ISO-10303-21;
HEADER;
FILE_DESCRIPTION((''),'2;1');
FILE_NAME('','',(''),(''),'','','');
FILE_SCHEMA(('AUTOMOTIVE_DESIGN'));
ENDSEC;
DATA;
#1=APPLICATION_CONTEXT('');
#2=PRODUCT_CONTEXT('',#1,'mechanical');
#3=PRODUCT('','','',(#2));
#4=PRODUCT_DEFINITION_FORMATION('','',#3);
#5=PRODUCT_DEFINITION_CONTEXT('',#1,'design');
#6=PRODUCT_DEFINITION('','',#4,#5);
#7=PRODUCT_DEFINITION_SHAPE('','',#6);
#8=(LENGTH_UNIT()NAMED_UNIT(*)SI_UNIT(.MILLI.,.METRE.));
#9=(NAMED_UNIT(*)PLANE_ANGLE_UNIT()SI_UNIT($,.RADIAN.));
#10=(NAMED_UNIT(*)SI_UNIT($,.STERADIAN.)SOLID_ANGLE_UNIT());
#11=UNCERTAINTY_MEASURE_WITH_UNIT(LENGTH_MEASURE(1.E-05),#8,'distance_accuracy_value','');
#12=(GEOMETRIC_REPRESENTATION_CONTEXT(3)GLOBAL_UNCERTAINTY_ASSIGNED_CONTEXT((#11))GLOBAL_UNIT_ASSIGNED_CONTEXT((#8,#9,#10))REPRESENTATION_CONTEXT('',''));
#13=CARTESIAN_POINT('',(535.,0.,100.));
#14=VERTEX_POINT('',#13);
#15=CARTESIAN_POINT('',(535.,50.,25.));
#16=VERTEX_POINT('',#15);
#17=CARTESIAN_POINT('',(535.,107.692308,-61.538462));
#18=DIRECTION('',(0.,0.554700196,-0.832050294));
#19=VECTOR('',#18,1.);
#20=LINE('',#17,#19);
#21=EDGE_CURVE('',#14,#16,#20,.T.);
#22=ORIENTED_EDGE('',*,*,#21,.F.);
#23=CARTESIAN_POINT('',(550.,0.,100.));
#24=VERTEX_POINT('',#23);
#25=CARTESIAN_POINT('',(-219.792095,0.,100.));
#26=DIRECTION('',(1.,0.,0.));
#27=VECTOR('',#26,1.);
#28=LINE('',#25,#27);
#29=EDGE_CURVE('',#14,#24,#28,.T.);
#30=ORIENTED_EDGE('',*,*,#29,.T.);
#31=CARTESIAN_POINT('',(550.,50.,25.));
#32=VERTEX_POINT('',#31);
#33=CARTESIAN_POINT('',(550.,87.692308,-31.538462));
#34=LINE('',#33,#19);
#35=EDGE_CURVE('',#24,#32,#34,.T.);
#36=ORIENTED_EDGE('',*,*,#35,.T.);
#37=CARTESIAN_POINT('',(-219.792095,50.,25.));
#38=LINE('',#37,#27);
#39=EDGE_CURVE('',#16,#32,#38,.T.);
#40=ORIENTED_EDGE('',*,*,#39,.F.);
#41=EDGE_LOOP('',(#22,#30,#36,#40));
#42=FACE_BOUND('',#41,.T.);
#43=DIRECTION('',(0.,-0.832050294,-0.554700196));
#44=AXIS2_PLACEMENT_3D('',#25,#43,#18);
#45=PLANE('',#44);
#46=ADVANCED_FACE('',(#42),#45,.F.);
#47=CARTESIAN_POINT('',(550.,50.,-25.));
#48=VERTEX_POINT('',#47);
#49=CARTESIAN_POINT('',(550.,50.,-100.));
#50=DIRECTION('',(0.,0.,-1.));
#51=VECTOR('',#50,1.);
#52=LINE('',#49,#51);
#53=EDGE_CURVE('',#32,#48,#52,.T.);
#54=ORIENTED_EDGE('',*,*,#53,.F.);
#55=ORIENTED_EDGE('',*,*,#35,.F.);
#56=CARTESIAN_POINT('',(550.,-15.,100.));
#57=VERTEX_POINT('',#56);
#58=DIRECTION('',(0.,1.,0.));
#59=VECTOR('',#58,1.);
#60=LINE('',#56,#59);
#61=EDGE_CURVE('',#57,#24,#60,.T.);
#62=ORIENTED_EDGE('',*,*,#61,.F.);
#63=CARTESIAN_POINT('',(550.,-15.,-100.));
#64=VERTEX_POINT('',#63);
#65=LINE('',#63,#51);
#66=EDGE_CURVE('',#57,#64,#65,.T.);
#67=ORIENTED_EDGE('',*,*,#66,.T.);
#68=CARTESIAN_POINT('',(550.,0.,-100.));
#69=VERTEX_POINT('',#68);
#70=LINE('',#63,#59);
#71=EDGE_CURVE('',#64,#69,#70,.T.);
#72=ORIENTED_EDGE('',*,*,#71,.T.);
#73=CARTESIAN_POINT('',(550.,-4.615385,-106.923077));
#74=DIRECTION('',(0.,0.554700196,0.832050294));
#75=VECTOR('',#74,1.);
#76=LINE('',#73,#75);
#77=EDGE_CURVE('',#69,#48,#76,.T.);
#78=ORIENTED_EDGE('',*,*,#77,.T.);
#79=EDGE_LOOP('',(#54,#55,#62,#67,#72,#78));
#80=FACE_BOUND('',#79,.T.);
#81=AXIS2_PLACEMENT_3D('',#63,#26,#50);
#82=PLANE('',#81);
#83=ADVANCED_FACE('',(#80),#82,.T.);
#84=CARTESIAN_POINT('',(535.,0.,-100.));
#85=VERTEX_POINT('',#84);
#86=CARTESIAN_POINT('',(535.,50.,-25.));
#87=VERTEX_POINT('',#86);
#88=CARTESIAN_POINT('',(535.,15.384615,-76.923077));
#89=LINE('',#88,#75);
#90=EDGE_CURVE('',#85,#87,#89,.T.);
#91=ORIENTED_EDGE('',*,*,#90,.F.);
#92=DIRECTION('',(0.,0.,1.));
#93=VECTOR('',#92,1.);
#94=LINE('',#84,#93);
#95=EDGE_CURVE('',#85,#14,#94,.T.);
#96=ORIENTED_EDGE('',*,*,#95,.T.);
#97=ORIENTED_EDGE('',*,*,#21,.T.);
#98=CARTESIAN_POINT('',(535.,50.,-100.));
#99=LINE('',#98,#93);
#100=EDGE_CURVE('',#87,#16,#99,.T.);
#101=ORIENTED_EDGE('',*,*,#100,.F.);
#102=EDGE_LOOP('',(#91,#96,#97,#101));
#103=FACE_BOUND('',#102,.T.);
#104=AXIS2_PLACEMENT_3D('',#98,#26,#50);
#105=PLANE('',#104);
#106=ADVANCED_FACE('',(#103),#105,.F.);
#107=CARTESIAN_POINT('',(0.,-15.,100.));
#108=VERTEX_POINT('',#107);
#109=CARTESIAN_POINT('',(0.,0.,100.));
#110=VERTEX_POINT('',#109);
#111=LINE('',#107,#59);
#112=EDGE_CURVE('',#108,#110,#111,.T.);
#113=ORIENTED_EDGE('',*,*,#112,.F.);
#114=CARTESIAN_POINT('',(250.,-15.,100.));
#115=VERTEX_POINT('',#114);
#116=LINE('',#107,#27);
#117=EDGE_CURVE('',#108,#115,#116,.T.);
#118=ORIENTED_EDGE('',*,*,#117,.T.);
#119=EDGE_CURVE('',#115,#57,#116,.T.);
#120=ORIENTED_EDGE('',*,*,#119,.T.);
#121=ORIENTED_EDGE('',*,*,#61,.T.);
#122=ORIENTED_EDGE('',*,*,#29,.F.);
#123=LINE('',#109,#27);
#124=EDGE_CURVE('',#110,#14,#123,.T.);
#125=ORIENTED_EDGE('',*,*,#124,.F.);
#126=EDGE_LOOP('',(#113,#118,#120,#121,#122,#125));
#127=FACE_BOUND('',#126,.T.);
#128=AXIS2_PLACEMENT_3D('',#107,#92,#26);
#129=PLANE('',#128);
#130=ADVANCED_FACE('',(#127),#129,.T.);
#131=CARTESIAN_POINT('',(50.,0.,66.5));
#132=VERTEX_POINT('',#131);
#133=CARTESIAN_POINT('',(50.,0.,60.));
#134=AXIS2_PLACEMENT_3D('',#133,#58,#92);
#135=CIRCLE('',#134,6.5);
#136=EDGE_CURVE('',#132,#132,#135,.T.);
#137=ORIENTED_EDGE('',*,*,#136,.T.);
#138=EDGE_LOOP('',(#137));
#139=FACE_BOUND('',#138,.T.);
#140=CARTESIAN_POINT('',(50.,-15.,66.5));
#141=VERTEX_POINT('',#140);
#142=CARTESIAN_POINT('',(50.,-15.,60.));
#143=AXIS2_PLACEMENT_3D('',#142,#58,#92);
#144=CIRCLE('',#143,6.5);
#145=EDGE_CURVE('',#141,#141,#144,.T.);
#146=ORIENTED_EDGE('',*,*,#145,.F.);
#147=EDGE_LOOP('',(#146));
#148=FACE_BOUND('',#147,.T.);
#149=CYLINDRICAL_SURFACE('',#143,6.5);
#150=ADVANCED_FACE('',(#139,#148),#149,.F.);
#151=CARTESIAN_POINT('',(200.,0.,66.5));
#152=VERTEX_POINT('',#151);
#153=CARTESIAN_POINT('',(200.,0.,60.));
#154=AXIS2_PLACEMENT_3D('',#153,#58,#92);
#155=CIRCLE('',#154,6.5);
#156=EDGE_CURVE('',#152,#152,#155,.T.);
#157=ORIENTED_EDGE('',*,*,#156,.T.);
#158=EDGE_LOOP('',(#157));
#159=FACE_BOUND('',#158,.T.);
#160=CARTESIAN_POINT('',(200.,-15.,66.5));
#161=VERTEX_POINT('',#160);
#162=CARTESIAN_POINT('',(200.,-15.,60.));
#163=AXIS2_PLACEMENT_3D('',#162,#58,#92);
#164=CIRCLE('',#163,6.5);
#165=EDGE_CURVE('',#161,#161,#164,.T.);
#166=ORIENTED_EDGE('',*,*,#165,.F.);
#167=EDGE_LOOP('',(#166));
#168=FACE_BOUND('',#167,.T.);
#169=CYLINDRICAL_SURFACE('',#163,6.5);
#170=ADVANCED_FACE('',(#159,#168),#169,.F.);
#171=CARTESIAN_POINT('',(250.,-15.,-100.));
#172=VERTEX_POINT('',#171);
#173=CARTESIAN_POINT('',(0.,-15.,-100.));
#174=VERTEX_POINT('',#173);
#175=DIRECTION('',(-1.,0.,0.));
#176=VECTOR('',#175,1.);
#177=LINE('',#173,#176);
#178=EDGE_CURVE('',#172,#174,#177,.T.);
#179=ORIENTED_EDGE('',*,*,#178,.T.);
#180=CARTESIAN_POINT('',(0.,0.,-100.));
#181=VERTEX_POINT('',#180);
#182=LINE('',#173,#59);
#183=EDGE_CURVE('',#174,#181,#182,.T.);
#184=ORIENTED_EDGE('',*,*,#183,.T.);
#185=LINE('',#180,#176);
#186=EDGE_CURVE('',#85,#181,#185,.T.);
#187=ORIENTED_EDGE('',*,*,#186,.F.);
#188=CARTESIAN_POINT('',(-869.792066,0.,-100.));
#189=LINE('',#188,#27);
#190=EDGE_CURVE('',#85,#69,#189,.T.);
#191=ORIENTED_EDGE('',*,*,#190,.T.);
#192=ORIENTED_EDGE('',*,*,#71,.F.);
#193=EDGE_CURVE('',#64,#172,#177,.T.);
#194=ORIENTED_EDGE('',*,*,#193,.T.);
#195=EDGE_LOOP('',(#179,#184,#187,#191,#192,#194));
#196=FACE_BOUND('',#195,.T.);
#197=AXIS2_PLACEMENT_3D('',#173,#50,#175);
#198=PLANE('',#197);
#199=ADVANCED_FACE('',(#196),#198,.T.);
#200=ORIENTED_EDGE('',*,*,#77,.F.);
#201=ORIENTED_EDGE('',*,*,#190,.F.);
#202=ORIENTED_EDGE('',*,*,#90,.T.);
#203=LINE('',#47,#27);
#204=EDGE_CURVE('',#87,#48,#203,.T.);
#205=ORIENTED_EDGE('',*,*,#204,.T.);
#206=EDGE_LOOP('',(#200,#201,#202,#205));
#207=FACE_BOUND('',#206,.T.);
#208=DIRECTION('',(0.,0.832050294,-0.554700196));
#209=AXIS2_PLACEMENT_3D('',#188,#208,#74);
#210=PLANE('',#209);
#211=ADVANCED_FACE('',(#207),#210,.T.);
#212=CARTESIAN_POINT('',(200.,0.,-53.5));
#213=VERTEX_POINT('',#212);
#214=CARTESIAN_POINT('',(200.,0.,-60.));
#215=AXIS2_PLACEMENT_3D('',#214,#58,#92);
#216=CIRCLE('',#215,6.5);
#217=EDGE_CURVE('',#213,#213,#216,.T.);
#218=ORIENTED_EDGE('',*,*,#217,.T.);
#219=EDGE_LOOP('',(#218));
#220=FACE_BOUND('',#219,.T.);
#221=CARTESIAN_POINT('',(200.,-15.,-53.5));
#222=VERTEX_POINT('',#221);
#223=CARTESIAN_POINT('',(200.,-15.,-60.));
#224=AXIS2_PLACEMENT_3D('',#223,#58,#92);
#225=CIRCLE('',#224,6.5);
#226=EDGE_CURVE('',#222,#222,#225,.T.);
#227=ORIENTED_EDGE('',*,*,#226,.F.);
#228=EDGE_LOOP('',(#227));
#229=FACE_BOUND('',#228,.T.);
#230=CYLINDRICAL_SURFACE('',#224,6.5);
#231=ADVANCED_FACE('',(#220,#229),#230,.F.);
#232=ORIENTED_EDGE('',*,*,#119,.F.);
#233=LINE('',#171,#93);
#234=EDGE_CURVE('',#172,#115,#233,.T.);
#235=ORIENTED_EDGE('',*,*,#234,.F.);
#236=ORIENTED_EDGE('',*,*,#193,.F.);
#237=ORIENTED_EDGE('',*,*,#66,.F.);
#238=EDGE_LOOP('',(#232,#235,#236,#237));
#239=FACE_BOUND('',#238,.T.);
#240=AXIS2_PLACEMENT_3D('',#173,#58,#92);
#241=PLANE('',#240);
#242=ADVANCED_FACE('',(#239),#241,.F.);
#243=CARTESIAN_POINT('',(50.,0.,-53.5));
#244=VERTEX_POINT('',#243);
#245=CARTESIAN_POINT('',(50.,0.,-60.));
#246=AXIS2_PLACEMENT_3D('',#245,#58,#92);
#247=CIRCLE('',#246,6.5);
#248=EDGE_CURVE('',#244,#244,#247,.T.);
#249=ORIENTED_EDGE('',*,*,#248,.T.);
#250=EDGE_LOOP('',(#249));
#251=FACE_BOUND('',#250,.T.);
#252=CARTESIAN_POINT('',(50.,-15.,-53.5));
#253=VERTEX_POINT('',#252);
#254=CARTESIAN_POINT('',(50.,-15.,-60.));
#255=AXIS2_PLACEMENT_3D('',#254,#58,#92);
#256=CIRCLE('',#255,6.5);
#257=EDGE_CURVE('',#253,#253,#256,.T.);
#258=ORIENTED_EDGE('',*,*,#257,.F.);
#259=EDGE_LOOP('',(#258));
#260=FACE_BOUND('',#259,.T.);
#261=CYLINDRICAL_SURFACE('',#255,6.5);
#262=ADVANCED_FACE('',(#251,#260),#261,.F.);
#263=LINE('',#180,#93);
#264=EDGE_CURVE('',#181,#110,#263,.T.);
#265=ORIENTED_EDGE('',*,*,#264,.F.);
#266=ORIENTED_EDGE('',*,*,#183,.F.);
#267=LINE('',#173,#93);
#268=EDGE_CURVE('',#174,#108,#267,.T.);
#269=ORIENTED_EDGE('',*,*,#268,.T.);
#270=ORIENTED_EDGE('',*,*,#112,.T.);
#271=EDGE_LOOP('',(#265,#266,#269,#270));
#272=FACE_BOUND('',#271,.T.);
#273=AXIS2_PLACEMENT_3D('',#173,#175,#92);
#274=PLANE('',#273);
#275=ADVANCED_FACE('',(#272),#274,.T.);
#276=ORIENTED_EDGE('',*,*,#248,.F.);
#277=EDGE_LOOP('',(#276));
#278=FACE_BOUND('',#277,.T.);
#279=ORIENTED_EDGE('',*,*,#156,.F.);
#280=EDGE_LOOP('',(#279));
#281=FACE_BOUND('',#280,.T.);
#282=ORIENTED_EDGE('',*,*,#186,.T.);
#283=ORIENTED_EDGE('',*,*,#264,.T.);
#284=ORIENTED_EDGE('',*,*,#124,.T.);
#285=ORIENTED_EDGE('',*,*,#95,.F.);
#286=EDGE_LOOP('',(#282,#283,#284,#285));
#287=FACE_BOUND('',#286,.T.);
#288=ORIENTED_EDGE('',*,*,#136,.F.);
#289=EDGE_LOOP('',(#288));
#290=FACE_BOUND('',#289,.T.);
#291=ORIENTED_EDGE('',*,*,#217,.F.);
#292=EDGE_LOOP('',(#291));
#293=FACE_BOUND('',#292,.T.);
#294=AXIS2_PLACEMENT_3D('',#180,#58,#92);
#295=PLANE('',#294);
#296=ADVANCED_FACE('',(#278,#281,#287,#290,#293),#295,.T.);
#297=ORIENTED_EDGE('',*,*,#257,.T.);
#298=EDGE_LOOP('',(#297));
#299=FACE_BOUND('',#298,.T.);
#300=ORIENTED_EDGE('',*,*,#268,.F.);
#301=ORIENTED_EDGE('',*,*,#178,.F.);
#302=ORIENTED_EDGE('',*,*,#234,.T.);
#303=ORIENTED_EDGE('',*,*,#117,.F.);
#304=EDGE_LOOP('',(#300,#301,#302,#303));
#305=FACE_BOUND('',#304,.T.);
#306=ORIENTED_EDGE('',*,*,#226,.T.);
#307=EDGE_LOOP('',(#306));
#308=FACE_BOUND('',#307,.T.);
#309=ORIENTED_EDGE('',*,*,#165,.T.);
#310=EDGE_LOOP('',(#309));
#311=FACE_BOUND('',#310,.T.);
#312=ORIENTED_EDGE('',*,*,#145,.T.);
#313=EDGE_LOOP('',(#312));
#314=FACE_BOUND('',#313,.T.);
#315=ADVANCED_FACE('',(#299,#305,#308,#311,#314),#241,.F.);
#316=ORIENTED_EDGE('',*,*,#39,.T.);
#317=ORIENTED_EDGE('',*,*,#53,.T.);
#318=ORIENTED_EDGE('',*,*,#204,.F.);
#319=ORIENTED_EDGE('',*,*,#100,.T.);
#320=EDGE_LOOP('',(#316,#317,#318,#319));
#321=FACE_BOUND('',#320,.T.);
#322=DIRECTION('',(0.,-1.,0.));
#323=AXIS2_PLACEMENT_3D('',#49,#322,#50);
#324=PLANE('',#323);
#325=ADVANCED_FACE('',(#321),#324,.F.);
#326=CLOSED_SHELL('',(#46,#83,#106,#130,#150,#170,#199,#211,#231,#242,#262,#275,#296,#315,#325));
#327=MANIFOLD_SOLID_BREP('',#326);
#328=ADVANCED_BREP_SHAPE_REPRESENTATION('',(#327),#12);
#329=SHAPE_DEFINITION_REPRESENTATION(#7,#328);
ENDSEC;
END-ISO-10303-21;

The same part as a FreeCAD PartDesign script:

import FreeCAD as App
import Part
import Sketcher

doc = App.newDocument("Part")
body = doc.addObject("PartDesign::Body", "Body")

# Sketch on XZ plane
sketch1 = body.newObject("Sketcher::SketchObject", "Sketch")
sketch1.AttachmentSupport = (doc.getObject("XZ_Plane"), [""])
sketch1.MapMode = "FlatFace"
sketch1.addGeometry([
    Part.LineSegment(App.Vector(0, -100, 0), App.Vector(0, 100, 0)),
    Part.LineSegment(App.Vector(0, 100, 0), App.Vector(550, 100, 0)),
    Part.LineSegment(App.Vector(550, 100, 0), App.Vector(550, -100, 0)),
    Part.LineSegment(App.Vector(550, -100, 0), App.Vector(0, -100, 0)),
], False)
sketch1.addConstraint([
    Sketcher.Constraint("Coincident", 0, 2, 1, 1),
    Sketcher.Constraint("Coincident", 1, 2, 2, 1),
    Sketcher.Constraint("Coincident", 2, 2, 3, 1),
    Sketcher.Constraint("Coincident", 3, 2, 0, 1),
    Sketcher.Constraint("Vertical", 0),
    Sketcher.Constraint("Horizontal", 1),
    Sketcher.Constraint("Vertical", 2),
    Sketcher.Constraint("Horizontal", 3),
    Sketcher.Constraint("Symmetric", 0, 2, 3, 2, -1, 1),
    Sketcher.Constraint("DistanceX", 1, 1, 1, 2, 550.0),
    Sketcher.Constraint("DistanceY", 0, 1, 0, 2, 200.0),
])
pad1 = body.newObject("PartDesign::Pad", "Pad")
pad1.Profile = sketch1
pad1.Length = 15

# Sketch on XZ plane
sketch2 = body.newObject("Sketcher::SketchObject", "Sketch001")
sketch2.AttachmentSupport = (doc.getObject("XZ_Plane"), [""])
sketch2.MapMode = "FlatFace"
sketch2.addGeometry([
    Part.LineSegment(App.Vector(550, 100, 0), App.Vector(550, -100, 0)),
    Part.LineSegment(App.Vector(550, -100, 0), App.Vector(535, -100, 0)),
    Part.LineSegment(App.Vector(535, -100, 0), App.Vector(535, 100, 0)),
    Part.LineSegment(App.Vector(535, 100, 0), App.Vector(550, 100, 0)),
], False)
sketch2.addConstraint([
    Sketcher.Constraint("Coincident", 0, 2, 1, 1),
    Sketcher.Constraint("Coincident", 1, 2, 2, 1),
    Sketcher.Constraint("Coincident", 2, 2, 3, 1),
    Sketcher.Constraint("Coincident", 3, 2, 0, 1),
    Sketcher.Constraint("Vertical", 0),
    Sketcher.Constraint("Horizontal", 1),
    Sketcher.Constraint("Vertical", 2),
    Sketcher.Constraint("Horizontal", 3),
    Sketcher.Constraint("DistanceX", 1, 2, 1, 1, 15.0),
    Sketcher.Constraint("DistanceY", 0, 2, 0, 1, 200.0),
    Sketcher.Constraint("DistanceX", -1, 1, 0, 2, 550.0),
    Sketcher.Constraint("DistanceY", 0, 2, -1, 1, 100.0),
])
pad2 = body.newObject("PartDesign::Pad", "Pad001")
pad2.Profile = sketch2
pad2.Length = 50
pad2.Reversed = True

# Sketch on YZ plane
sketch3 = body.newObject("Sketcher::SketchObject", "Sketch002")
sketch3.AttachmentSupport = (doc.getObject("YZ_Plane"), [""])
sketch3.MapMode = "FlatFace"
sketch3.AttachmentOffset = App.Placement(App.Vector(0, 0, 535), App.Rotation())
sketch3.addGeometry([
    Part.LineSegment(App.Vector(50, -100, 0), App.Vector(0, -100, 0)),
    Part.LineSegment(App.Vector(0, -100, 0), App.Vector(50, -25, 0)),
    Part.LineSegment(App.Vector(50, -25, 0), App.Vector(50, -100, 0)),
], False)
sketch3.addConstraint([
    Sketcher.Constraint("Coincident", 0, 2, 1, 1),
    Sketcher.Constraint("Coincident", 1, 2, 2, 1),
    Sketcher.Constraint("Coincident", 2, 2, 0, 1),
    Sketcher.Constraint("Horizontal", 0),
    Sketcher.Constraint("Vertical", 2),
    Sketcher.Constraint("PointOnObject", 0, 2, -2),
    Sketcher.Constraint("DistanceX", 0, 2, 0, 1, 50.0),
    Sketcher.Constraint("DistanceY", 2, 2, 2, 1, 75.0),
    Sketcher.Constraint("DistanceY", 0, 2, -1, 1, 100.0),
])
pocket1 = body.newObject("PartDesign::Pocket", "Pocket")
pocket1.Profile = sketch3
pocket1.Type = "ThroughAll"
pocket1.Midplane = True

# Sketch on YZ plane
sketch4 = body.newObject("Sketcher::SketchObject", "Sketch003")
sketch4.AttachmentSupport = (doc.getObject("YZ_Plane"), [""])
sketch4.MapMode = "FlatFace"
sketch4.AttachmentOffset = App.Placement(App.Vector(0, 0, 535), App.Rotation())
sketch4.addGeometry([
    Part.LineSegment(App.Vector(284, -326, 0), App.Vector(-234, 451, 0)),
    Part.LineSegment(App.Vector(-234, 451, 0), App.Vector(469, 920, 0)),
    Part.LineSegment(App.Vector(469, 920, 0), App.Vector(987, 142, 0)),
    Part.LineSegment(App.Vector(987, 142, 0), App.Vector(284, -326, 0)),
], False)
sketch4.addConstraint([
    Sketcher.Constraint("Coincident", 0, 2, 1, 1),
    Sketcher.Constraint("Coincident", 1, 2, 2, 1),
    Sketcher.Constraint("Coincident", 2, 2, 3, 1),
    Sketcher.Constraint("Coincident", 3, 2, 0, 1),
    Sketcher.Constraint("Perpendicular", 0, 1),
    Sketcher.Constraint("Perpendicular", 1, 2),
    Sketcher.Constraint("Perpendicular", 2, 3),
    Sketcher.Constraint("DistanceX", 0, 2, -1, 1, 234.255752),
    Sketcher.Constraint("DistanceY", -1, 1, 1, 2, 919.895132),
    Sketcher.Constraint("DistanceX", -1, 1, 3, 2, 284.255752),
    Sketcher.Constraint("DistanceX", 0, 2, 2, 2, 1221.27876),
    Sketcher.Constraint("DistanceY", 2, 2, 0, 2, 309.255752),
])
pocket2 = body.newObject("PartDesign::Pocket", "Pocket001")
pocket2.Profile = sketch4
pocket2.Type = "ThroughAll"
pocket2.Midplane = True

# Sketch on XZ plane
sketch5 = body.newObject("Sketcher::SketchObject", "Sketch004")
sketch5.AttachmentSupport = (doc.getObject("XZ_Plane"), [""])
sketch5.MapMode = "FlatFace"
sketch5.addGeometry([
    Part.Circle(App.Vector(50, -60, 0), App.Vector(0, 0, 1), 6),
    Part.Circle(App.Vector(200, -60, 0), App.Vector(0, 0, 1), 6),
    Part.Circle(App.Vector(50, 60, 0), App.Vector(0, 0, 1), 6),
    Part.Circle(App.Vector(200, 60, 0), App.Vector(0, 0, 1), 6),
], False)
sketch5.addConstraint([
    Sketcher.Constraint("Equal", 0, 1),
    Sketcher.Constraint("Equal", 1, 2),
    Sketcher.Constraint("Equal", 2, 3),
    Sketcher.Constraint("Symmetric", 0, 3, 2, 3, -1),
    Sketcher.Constraint("Symmetric", 1, 3, 3, 3, -1),
    Sketcher.Constraint("Horizontal", 0, 3, 1, 3),
    Sketcher.Constraint("Diameter", 0, 13.0),
    Sketcher.Constraint("DistanceX", -1, 1, 0, 3, 50.0),
    Sketcher.Constraint("DistanceY", 0, 3, -1, 1, 60.0),
    Sketcher.Constraint("DistanceX", -1, 1, 1, 3, 200.0),
])
pocket3 = body.newObject("PartDesign::Pocket", "Pocket002")
pocket3.Profile = sketch5
pocket3.Type = "ThroughAll"
pocket3.Reversed = True

doc.recompute()
